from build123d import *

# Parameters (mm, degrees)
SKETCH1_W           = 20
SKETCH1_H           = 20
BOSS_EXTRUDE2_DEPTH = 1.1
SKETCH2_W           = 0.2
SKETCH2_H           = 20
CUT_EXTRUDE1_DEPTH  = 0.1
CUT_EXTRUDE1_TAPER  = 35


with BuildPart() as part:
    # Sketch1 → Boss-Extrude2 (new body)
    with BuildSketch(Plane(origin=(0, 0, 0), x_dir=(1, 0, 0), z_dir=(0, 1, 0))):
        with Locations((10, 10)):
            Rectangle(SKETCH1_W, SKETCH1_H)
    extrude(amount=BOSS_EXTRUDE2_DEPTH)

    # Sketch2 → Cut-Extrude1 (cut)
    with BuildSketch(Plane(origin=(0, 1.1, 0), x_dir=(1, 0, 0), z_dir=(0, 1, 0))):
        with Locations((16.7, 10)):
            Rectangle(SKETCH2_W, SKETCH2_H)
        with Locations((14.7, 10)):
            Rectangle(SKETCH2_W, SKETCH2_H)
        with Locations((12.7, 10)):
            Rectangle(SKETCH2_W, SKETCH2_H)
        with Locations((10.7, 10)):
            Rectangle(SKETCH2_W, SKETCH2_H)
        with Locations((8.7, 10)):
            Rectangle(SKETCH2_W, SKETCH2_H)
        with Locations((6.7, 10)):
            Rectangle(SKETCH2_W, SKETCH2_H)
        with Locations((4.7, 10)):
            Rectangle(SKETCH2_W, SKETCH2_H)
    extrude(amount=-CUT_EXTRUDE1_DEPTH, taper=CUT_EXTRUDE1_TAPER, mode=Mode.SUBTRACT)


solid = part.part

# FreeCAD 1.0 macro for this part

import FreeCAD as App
import Part
import Sketcher

doc = App.newDocument("Part")
body = doc.addObject("PartDesign::Body", "Body")

# Sketch on XZ plane
sketch1 = body.newObject("Sketcher::SketchObject", "Sketch")
sketch1.AttachmentSupport = (doc.getObject("XZ_Plane"), [""])
sketch1.MapMode = "FlatFace"
sketch1.addGeometry([
    Part.LineSegment(App.Vector(0, -20, 0), App.Vector(0, 0, 0)),
    Part.LineSegment(App.Vector(0, 0, 0), App.Vector(20, 0, 0)),
    Part.LineSegment(App.Vector(20, 0, 0), App.Vector(20, -20, 0)),
    Part.LineSegment(App.Vector(20, -20, 0), App.Vector(0, -20, 0)),
], False)
sketch1.addConstraint([
    Sketcher.Constraint("Coincident", 0, 2, 1, 1),
    Sketcher.Constraint("Coincident", 1, 2, 2, 1),
    Sketcher.Constraint("Coincident", 2, 2, 3, 1),
    Sketcher.Constraint("Coincident", 3, 2, 0, 1),
    Sketcher.Constraint("Vertical", 0),
    Sketcher.Constraint("Horizontal", 1),
    Sketcher.Constraint("Vertical", 2),
    Sketcher.Constraint("Horizontal", 3),
    Sketcher.Constraint("Coincident", 0, 2, -1, 1),
    Sketcher.Constraint("Equal", 3, 0),
    Sketcher.Constraint("DistanceX", 1, 1, 1, 2, 20.0),
])
pad1 = body.newObject("PartDesign::Pad", "Pad")
pad1.Profile = sketch1
pad1.Length = 1.1
pad1.Reversed = True

# Sketch on XZ plane
sketch2 = body.newObject("Sketcher::SketchObject", "Sketch001")
sketch2.AttachmentSupport = (doc.getObject("XZ_Plane"), [""])
sketch2.MapMode = "FlatFace"
sketch2.AttachmentOffset = App.Placement(App.Vector(0, 0, -1.1), App.Rotation())
sketch2.addGeometry([
    Part.LineSegment(App.Vector(16.6, -20, 0), App.Vector(16.6, 0, 0)),  # 0
    Part.LineSegment(App.Vector(16.6, 0, 0), App.Vector(16.8, 0, 0)),  # 1
    Part.LineSegment(App.Vector(16.8, 0, 0), App.Vector(16.8, -20, 0)),  # 2
    Part.LineSegment(App.Vector(16.8, -20, 0), App.Vector(16.6, -20, 0)),  # 3
    Part.LineSegment(App.Vector(14.6, -20, 0), App.Vector(14.6, 0, 0)),  # 4
    Part.LineSegment(App.Vector(14.6, 0, 0), App.Vector(14.8, 0, 0)),  # 5
    Part.LineSegment(App.Vector(14.8, 0, 0), App.Vector(14.8, -20, 0)),  # 6
    Part.LineSegment(App.Vector(14.8, -20, 0), App.Vector(14.6, -20, 0)),  # 7
    Part.LineSegment(App.Vector(12.6, -20, 0), App.Vector(12.6, 0, 0)),  # 8
    Part.LineSegment(App.Vector(12.6, 0, 0), App.Vector(12.8, 0, 0)),  # 9
    Part.LineSegment(App.Vector(12.8, 0, 0), App.Vector(12.8, -20, 0)),  # 10
    Part.LineSegment(App.Vector(12.8, -20, 0), App.Vector(12.6, -20, 0)),  # 11
    Part.LineSegment(App.Vector(10.6, -20, 0), App.Vector(10.6, 0, 0)),  # 12
    Part.LineSegment(App.Vector(10.6, 0, 0), App.Vector(10.8, 0, 0)),  # 13
    Part.LineSegment(App.Vector(10.8, 0, 0), App.Vector(10.8, -20, 0)),  # 14
    Part.LineSegment(App.Vector(10.8, -20, 0), App.Vector(10.6, -20, 0)),  # 15
    Part.LineSegment(App.Vector(8.6, -20, 0), App.Vector(8.6, 0, 0)),  # 16
    Part.LineSegment(App.Vector(8.6, 0, 0), App.Vector(8.8, 0, 0)),  # 17
    Part.LineSegment(App.Vector(8.8, 0, 0), App.Vector(8.8, -20, 0)),  # 18
    Part.LineSegment(App.Vector(8.8, -20, 0), App.Vector(8.6, -20, 0)),  # 19
    Part.LineSegment(App.Vector(6.6, -20, 0), App.Vector(6.6, 0, 0)),  # 20
    Part.LineSegment(App.Vector(6.6, 0, 0), App.Vector(6.8, 0, 0)),  # 21
    Part.LineSegment(App.Vector(6.8, 0, 0), App.Vector(6.8, -20, 0)),  # 22
    Part.LineSegment(App.Vector(6.8, -20, 0), App.Vector(6.6, -20, 0)),  # 23
    Part.LineSegment(App.Vector(4.6, -20, 0), App.Vector(4.6, 0, 0)),  # 24
    Part.LineSegment(App.Vector(4.6, 0, 0), App.Vector(4.8, 0, 0)),  # 25
    Part.LineSegment(App.Vector(4.8, 0, 0), App.Vector(4.8, -20, 0)),  # 26
    Part.LineSegment(App.Vector(4.8, -20, 0), App.Vector(4.6, -20, 0)),  # 27
], False)
sketch2.addConstraint([
    Sketcher.Constraint("Coincident", 0, 2, 1, 1),
    Sketcher.Constraint("Coincident", 1, 2, 2, 1),
    Sketcher.Constraint("Coincident", 2, 2, 3, 1),
    Sketcher.Constraint("Coincident", 3, 2, 0, 1),
    Sketcher.Constraint("Coincident", 4, 2, 5, 1),
    Sketcher.Constraint("Coincident", 5, 2, 6, 1),
    Sketcher.Constraint("Coincident", 6, 2, 7, 1),
    Sketcher.Constraint("Coincident", 7, 2, 4, 1),
    Sketcher.Constraint("Coincident", 8, 2, 9, 1),
    Sketcher.Constraint("Coincident", 9, 2, 10, 1),
    Sketcher.Constraint("Coincident", 10, 2, 11, 1),
    Sketcher.Constraint("Coincident", 11, 2, 8, 1),
    Sketcher.Constraint("Coincident", 12, 2, 13, 1),
    Sketcher.Constraint("Coincident", 13, 2, 14, 1),
    Sketcher.Constraint("Coincident", 14, 2, 15, 1),
    Sketcher.Constraint("Coincident", 15, 2, 12, 1),
    Sketcher.Constraint("Coincident", 16, 2, 17, 1),
    Sketcher.Constraint("Coincident", 17, 2, 18, 1),
    Sketcher.Constraint("Coincident", 18, 2, 19, 1),
    Sketcher.Constraint("Coincident", 19, 2, 16, 1),
    Sketcher.Constraint("Coincident", 20, 2, 21, 1),
    Sketcher.Constraint("Coincident", 21, 2, 22, 1),
    Sketcher.Constraint("Coincident", 22, 2, 23, 1),
    Sketcher.Constraint("Coincident", 23, 2, 20, 1),
    Sketcher.Constraint("Coincident", 24, 2, 25, 1),
    Sketcher.Constraint("Coincident", 25, 2, 26, 1),
    Sketcher.Constraint("Coincident", 26, 2, 27, 1),
    Sketcher.Constraint("Coincident", 27, 2, 24, 1),
    Sketcher.Constraint("Vertical", 0),
    Sketcher.Constraint("Horizontal", 1),
    Sketcher.Constraint("Vertical", 2),
    Sketcher.Constraint("Horizontal", 3),
    Sketcher.Constraint("Vertical", 4),
    Sketcher.Constraint("Horizontal", 5),
    Sketcher.Constraint("Vertical", 6),
    Sketcher.Constraint("Horizontal", 7),
    Sketcher.Constraint("Vertical", 8),
    Sketcher.Constraint("Horizontal", 9),
    Sketcher.Constraint("Vertical", 10),
    Sketcher.Constraint("Horizontal", 11),
    Sketcher.Constraint("Vertical", 12),
    Sketcher.Constraint("Horizontal", 13),
    Sketcher.Constraint("Vertical", 14),
    Sketcher.Constraint("Horizontal", 15),
    Sketcher.Constraint("Vertical", 16),
    Sketcher.Constraint("Horizontal", 17),
    Sketcher.Constraint("Vertical", 18),
    Sketcher.Constraint("Horizontal", 19),
    Sketcher.Constraint("Vertical", 20),
    Sketcher.Constraint("Horizontal", 21),
    Sketcher.Constraint("Vertical", 22),
    Sketcher.Constraint("Horizontal", 23),
    Sketcher.Constraint("Vertical", 24),
    Sketcher.Constraint("Horizontal", 25),
    Sketcher.Constraint("Vertical", 26),
    Sketcher.Constraint("Horizontal", 27),
    Sketcher.Constraint("PointOnObject", 0, 2, -1),
    Sketcher.Constraint("PointOnObject", 4, 2, -1),
    Sketcher.Constraint("PointOnObject", 8, 2, -1),
    Sketcher.Constraint("PointOnObject", 12, 2, -1),
    Sketcher.Constraint("PointOnObject", 16, 2, -1),
    Sketcher.Constraint("PointOnObject", 20, 2, -1),
    Sketcher.Constraint("PointOnObject", 24, 2, -1),
    Sketcher.Constraint("Horizontal", 3, 2, 6, 2),
    Sketcher.Constraint("Horizontal", 7, 2, 10, 2),
    Sketcher.Constraint("Horizontal", 11, 2, 14, 2),
    Sketcher.Constraint("Horizontal", 15, 2, 18, 2),
    Sketcher.Constraint("Horizontal", 19, 2, 22, 2),
    Sketcher.Constraint("Horizontal", 23, 2, 26, 2),
    Sketcher.Constraint("Equal", 3, 5),
    Sketcher.Constraint("Equal", 7, 9),
    Sketcher.Constraint("Equal", 11, 13),
    Sketcher.Constraint("Equal", 15, 17),
    Sketcher.Constraint("Equal", 19, 21),
    Sketcher.Constraint("Equal", 23, 25),
    Sketcher.Constraint("DistanceY", 0, 1, 0, 2, 20.0),
    Sketcher.Constraint("DistanceX", 1, 1, 1, 2, 0.2),
    Sketcher.Constraint("DistanceX", 4, 2, 0, 2, 2.0),
    Sketcher.Constraint("DistanceX", 8, 2, 4, 2, 2.0),
    Sketcher.Constraint("DistanceX", 12, 2, 8, 2, 2.0),
    Sketcher.Constraint("DistanceX", 16, 2, 12, 2, 2.0),
    Sketcher.Constraint("DistanceX", 20, 2, 16, 2, 2.0),
    Sketcher.Constraint("DistanceX", 24, 2, 20, 2, 2.0),
    Sketcher.Constraint("DistanceX", -1, 1, 0, 2, 16.6),
])
pocket1 = body.newObject("PartDesign::Pocket", "Pocket")
pocket1.Profile = sketch2
pocket1.Length = 0.1
pocket1.Reversed = True
pocket1.TaperAngle = -35

doc.recompute()
